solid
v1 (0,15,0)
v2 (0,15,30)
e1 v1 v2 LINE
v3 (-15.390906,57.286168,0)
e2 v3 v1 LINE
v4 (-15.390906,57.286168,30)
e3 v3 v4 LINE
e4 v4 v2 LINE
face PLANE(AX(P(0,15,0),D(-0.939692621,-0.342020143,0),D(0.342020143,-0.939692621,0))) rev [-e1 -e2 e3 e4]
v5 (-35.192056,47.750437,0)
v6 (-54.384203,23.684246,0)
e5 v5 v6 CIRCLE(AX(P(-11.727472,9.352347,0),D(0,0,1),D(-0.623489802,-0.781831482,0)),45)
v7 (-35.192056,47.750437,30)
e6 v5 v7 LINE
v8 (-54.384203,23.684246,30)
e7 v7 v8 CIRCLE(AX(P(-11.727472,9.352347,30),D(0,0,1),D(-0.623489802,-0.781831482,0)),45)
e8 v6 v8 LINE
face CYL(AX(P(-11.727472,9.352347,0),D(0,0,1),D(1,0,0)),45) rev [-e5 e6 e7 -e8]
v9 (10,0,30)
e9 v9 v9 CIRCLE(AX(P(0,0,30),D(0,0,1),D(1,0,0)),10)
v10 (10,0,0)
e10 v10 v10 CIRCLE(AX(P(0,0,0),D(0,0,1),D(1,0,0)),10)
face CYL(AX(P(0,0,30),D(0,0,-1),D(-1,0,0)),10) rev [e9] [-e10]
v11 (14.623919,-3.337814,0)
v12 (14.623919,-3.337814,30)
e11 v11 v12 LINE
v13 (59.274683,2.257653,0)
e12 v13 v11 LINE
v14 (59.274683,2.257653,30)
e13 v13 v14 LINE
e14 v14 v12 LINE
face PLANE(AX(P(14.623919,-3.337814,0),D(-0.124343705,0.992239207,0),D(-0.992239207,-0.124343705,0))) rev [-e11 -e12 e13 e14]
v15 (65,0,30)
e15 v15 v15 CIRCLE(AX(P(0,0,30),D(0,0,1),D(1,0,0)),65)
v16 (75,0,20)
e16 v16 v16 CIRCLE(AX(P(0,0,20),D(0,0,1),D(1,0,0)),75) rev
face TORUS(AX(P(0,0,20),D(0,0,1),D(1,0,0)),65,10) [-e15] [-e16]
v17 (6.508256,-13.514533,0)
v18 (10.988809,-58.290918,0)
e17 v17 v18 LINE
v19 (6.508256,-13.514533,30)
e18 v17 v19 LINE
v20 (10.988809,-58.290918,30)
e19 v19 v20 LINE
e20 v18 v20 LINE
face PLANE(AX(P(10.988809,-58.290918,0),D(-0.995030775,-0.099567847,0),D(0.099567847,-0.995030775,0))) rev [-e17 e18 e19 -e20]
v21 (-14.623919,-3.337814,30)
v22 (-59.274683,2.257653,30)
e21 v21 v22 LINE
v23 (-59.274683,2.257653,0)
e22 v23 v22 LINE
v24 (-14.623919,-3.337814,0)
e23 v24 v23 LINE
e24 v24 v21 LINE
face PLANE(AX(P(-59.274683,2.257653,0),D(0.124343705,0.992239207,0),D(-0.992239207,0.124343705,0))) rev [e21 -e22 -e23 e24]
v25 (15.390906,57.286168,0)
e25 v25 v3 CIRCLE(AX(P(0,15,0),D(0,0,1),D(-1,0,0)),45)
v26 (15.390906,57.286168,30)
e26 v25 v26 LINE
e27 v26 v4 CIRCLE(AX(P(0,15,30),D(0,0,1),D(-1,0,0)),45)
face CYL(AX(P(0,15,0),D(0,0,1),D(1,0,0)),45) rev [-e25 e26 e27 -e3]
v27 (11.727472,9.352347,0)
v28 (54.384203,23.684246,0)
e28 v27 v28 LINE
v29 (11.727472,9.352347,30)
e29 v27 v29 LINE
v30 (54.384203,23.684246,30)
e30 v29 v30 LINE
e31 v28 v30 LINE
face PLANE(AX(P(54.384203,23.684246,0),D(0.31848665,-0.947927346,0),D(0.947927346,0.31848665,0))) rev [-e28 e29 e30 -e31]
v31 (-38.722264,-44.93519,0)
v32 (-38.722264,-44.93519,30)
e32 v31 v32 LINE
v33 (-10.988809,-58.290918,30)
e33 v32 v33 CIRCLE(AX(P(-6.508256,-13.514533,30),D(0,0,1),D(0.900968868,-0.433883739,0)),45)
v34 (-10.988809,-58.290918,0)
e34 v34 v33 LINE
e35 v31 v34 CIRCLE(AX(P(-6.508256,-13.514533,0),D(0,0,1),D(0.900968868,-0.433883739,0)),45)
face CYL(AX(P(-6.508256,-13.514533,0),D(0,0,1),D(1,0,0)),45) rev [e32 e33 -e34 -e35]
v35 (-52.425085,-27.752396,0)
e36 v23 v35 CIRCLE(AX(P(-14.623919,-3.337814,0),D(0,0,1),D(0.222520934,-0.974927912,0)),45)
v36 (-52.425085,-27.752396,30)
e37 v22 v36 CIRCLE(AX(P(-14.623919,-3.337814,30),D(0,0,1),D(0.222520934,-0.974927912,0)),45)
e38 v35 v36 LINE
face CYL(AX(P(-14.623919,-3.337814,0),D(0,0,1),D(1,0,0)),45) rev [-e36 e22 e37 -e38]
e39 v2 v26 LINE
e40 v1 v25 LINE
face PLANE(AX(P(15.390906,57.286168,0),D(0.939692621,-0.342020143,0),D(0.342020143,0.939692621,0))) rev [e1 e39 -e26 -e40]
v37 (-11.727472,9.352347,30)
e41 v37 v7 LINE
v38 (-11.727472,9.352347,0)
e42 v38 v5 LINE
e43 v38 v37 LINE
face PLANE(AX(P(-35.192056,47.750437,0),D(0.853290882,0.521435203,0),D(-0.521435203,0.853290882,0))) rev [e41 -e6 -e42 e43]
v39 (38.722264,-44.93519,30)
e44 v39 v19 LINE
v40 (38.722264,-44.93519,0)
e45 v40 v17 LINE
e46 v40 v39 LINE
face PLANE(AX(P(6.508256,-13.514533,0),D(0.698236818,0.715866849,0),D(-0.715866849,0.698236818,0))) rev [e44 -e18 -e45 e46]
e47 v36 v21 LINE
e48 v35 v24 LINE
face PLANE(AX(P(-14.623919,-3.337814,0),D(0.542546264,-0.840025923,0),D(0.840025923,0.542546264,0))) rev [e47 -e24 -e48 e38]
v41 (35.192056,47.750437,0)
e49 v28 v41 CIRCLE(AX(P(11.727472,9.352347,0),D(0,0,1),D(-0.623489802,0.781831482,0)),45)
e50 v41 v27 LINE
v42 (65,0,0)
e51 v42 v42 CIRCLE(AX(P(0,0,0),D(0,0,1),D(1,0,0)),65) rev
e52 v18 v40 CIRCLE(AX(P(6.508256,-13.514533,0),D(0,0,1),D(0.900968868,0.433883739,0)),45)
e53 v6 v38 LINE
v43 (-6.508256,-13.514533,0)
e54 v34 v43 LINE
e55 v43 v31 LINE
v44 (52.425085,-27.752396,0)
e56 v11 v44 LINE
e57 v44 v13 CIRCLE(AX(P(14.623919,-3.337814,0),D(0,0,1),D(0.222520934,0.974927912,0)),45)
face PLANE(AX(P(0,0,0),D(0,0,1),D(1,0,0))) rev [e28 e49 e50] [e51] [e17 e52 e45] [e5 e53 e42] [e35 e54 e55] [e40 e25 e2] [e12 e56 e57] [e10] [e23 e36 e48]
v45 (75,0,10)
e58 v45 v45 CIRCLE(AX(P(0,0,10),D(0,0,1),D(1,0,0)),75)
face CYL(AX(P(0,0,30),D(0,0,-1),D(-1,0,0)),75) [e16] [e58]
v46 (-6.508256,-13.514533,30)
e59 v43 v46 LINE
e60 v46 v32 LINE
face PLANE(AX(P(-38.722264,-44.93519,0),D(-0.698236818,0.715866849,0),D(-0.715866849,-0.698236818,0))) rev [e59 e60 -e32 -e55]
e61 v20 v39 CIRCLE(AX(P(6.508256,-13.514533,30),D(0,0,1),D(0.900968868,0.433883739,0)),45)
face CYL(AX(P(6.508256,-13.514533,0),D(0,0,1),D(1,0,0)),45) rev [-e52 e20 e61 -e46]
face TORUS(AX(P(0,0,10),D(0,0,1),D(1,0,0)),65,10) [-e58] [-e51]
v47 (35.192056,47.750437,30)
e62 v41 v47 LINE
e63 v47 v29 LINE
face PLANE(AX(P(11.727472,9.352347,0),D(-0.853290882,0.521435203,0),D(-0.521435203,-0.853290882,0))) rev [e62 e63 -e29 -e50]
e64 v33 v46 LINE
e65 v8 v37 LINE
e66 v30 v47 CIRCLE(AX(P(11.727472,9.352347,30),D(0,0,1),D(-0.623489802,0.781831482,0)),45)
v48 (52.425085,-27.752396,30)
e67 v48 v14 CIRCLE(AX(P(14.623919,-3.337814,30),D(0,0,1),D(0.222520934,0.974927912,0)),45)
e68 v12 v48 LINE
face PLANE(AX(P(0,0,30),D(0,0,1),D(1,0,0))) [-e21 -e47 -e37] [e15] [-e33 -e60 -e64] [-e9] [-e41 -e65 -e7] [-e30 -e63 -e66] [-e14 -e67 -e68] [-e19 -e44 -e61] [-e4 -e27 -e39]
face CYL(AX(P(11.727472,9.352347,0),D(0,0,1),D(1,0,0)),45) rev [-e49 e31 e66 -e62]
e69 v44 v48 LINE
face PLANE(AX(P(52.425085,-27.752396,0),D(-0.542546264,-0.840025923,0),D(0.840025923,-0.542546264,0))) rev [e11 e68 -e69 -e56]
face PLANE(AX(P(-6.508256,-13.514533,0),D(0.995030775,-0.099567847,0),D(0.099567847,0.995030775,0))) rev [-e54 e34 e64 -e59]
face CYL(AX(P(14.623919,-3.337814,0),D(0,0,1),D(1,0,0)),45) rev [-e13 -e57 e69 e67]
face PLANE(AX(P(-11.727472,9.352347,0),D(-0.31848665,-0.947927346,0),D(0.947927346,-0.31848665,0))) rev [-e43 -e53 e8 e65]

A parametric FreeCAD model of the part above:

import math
import FreeCAD as App
import Part
import Sketcher

V = App.Vector
Q = App.Units.Quantity


def edges_at(feature, points):
    """Names of the edges that pass closest to the given points."""
    edges = feature.Shape.Edges
    near = lambda p: min(range(len(edges)), key=lambda i: edges[i].distToShape(Part.Vertex(*p))[0])
    return sorted({f"Edge{near(p) + 1}" for p in points})

doc = App.newDocument("Part")
body = doc.addObject("PartDesign::Body", "Body")

# Sketch on XY plane
sketch1 = body.newObject("Sketcher::SketchObject", "Sketch")
sketch1.AttachmentSupport = (doc.getObject("XY_Plane"), [""])
sketch1.MapMode = "FlatFace"
sketch1.addGeometry([
    Part.Circle(V(0, 0, 0), V(0, 0, 1), 75),
    Part.Circle(V(0, 0, 0), V(0, 0, 1), 10),
], False)
sketch1.addConstraint([
    Sketcher.Constraint("Coincident", 0, 3, -1, 1),
    Sketcher.Constraint("Coincident", 1, 3, -1, 1),
    Sketcher.Constraint("Diameter", 0, Q("150 mm")),
    Sketcher.Constraint("Diameter", 1, Q("20 mm")),
])
pad1 = body.newObject("PartDesign::Pad", "Pad")
pad1.Profile = sketch1
pad1.Length = 30

# Sketch on XY plane
sketch2 = body.newObject("Sketcher::SketchObject", "Sketch001")
sketch2.AttachmentSupport = (doc.getObject("XY_Plane"), [""])
sketch2.MapMode = "FlatFace"
sketch2.AttachmentOffset = App.Placement(V(0, 0, 30), App.Rotation())
sketch2.addGeometry([
    Part.LineSegment(V(-15.390906, 57.286168, 0), V(0, 15, 0)),
    Part.LineSegment(V(0, 15, 0), V(15.390906, 57.286168, 0)),
    Part.ArcOfCircle(Part.Circle(V(0, 15, 0), V(0, 0, 1), 45), math.radians(70), math.radians(110)),
], False)
sketch2.addConstraint([
    Sketcher.Constraint("Coincident", 0, 2, 1, 1),
    Sketcher.Constraint("Coincident", 1, 2, 2, 1),
    Sketcher.Constraint("Coincident", 2, 2, 0, 1),
    Sketcher.Constraint("Coincident", 0, 2, 2, 3),
    Sketcher.Constraint("Symmetric", 1, 2, 2, 2, -2),
    Sketcher.Constraint("Radius", 2, Q("45 mm")),
    Sketcher.Constraint("Angle", 0, Q("-70 deg")),
    Sketcher.Constraint("DistanceY", -1, 1, 2, 3, Q("15 mm")),
])
pocket1 = body.newObject("PartDesign::Pocket", "Pocket")
pocket1.Profile = sketch2
pocket1.Type = "ThroughAll"
doc.recompute()

fillet = body.newObject("PartDesign::Fillet", "Fillet")
fillet.Base = (pocket1, edges_at(pocket1, [(-75, 0, 0), (-75, 0, 30)]))
fillet.Radius = 10
doc.recompute()

polarpattern = body.newObject("PartDesign::PolarPattern", "PolarPattern")
polarpattern.Originals = [pocket1]
polarpattern.Axis = (doc.getObject("Z_Axis"), [""])
polarpattern.Angle = 360
polarpattern.Occurrences = 7
body.Tip = polarpattern

doc.recompute()
